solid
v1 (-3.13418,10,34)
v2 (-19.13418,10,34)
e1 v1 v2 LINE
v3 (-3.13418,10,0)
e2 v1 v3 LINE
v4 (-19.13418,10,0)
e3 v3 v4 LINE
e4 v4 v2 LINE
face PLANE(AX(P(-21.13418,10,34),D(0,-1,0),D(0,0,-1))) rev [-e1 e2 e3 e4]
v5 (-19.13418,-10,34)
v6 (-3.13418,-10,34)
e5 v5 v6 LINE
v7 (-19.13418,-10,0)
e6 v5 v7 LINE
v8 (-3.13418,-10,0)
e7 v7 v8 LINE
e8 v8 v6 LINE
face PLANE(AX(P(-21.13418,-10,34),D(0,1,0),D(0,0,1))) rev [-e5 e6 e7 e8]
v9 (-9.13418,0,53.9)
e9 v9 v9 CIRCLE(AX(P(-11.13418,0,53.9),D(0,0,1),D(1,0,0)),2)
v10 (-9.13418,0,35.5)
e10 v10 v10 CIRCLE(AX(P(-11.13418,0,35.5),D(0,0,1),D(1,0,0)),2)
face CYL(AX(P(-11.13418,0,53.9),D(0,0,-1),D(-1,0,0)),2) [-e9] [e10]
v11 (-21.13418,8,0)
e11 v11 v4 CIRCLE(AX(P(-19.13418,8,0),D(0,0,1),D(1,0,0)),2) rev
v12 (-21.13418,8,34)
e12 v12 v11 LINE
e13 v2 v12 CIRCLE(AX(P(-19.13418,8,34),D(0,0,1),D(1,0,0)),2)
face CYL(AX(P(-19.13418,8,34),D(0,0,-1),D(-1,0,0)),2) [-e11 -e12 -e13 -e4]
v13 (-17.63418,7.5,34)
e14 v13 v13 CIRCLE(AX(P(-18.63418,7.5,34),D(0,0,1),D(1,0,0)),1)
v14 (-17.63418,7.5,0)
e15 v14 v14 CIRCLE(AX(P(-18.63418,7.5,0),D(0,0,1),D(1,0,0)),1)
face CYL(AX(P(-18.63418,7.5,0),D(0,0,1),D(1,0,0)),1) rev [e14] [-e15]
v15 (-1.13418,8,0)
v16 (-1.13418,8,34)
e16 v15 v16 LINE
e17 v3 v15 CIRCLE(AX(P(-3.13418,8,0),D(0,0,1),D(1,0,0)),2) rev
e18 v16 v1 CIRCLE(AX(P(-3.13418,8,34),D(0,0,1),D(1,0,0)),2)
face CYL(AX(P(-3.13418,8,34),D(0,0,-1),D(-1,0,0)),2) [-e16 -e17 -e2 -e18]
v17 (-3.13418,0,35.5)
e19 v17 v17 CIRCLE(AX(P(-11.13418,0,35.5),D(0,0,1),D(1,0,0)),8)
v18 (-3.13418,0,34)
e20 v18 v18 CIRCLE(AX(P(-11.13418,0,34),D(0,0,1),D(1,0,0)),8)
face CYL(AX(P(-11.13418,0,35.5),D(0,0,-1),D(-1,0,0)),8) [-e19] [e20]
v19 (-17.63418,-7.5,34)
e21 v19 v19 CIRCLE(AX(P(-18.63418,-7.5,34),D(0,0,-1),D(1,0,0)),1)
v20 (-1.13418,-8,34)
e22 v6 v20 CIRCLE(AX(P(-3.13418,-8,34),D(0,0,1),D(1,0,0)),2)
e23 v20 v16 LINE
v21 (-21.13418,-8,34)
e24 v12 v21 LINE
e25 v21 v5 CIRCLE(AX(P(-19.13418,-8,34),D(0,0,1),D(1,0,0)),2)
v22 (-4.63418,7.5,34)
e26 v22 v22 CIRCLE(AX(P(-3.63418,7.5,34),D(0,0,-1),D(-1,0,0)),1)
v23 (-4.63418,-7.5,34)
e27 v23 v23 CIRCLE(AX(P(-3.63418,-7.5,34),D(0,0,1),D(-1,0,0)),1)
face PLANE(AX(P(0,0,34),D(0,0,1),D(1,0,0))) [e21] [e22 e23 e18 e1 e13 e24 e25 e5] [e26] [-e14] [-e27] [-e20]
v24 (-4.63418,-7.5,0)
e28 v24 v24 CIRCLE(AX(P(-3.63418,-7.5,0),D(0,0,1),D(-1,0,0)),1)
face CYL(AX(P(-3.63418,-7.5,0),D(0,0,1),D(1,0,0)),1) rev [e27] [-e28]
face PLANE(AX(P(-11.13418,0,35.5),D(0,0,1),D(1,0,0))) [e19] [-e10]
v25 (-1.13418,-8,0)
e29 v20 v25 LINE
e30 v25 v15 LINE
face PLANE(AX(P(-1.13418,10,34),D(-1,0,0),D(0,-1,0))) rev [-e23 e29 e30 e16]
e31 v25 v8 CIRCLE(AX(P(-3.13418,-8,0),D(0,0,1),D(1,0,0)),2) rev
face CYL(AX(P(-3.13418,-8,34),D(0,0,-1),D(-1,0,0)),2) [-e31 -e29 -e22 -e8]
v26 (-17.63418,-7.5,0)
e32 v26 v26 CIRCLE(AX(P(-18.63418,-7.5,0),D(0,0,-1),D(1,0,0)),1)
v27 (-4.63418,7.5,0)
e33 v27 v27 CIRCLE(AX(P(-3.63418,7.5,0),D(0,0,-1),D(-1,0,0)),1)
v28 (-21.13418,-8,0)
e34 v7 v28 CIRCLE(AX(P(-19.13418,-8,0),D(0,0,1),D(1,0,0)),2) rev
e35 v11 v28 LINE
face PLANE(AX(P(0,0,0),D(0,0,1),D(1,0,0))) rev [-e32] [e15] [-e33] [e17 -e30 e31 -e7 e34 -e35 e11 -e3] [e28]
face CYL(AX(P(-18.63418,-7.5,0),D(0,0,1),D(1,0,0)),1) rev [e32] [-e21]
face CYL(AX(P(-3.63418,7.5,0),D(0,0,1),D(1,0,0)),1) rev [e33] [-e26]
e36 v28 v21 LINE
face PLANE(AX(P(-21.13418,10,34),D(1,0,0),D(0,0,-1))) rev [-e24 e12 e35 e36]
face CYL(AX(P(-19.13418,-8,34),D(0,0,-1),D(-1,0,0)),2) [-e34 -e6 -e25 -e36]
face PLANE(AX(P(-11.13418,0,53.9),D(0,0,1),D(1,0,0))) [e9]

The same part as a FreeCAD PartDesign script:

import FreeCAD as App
import Part
import Sketcher
from FreeCAD import Vector


def edges_at(feature, points):
    """Names of the edges that pass closest to the given points."""
    edges = feature.Shape.Edges
    near = lambda p: min(range(len(edges)), key=lambda i: edges[i].distToShape(Part.Vertex(*p))[0])
    return sorted({f"Edge{near(p) + 1}" for p in points})

doc = App.newDocument("Part")
params = doc.addObject("Spreadsheet::Sheet", "Params")
for row, (alias, value) in enumerate([
    ("sketch1_width", "20 mm"),
    ("pad1_length", "34 mm"),
    ("sketch2_diameter", "16 mm"),
    ("pad2_length", "1.5 mm"),
    ("sketch3_diameter", "4 mm"),
    ("pad3_length", "18.4 mm"),
    ("sketch4_diameter", "2 mm"),
    ("sketch5_diameter", "2 mm"),
    ("fillet_radius", "2 mm"),
], start=1):
    params.set(f"A{row}", alias)
    params.set(f"B{row}", "=" + value)
    params.setAlias(f"B{row}", alias)

body = doc.addObject("PartDesign::Body", "Body")

sketch1 = body.newObject("Sketcher::SketchObject", "Sketch")
sketch1.AttachmentSupport = (doc.getObject("XY_Plane"), [""])
sketch1.MapMode = "FlatFace"
sketch1.addGeometry([
    Part.LineSegment(Vector(-21.13418, 10, 0), Vector(-21.13418, -10, 0)),
    Part.LineSegment(Vector(-21.13418, -10, 0), Vector(-1.13418, -10, 0)),
    Part.LineSegment(Vector(-1.13418, -10, 0), Vector(-1.13418, 10, 0)),
    Part.LineSegment(Vector(-1.13418, 10, 0), Vector(-21.13418, 10, 0)),
], False)
sketch1.addConstraint([
    Sketcher.Constraint("Coincident", 0, 2, 1, 1),
    Sketcher.Constraint("Coincident", 1, 2, 2, 1),
    Sketcher.Constraint("Coincident", 2, 2, 3, 1),
    Sketcher.Constraint("Coincident", 3, 2, 0, 1),
    Sketcher.Constraint("Vertical", 0),
    Sketcher.Constraint("Horizontal", 1),
    Sketcher.Constraint("Vertical", 2),
    Sketcher.Constraint("Horizontal", 3),
    Sketcher.Constraint("Equal", 3, 0),
    Sketcher.Constraint("DistanceX", 1, 1, 1, 2, 20.0),
    Sketcher.Constraint("DistanceY", 0, 2, -1, 1, 10.0),
    Sketcher.Constraint("DistanceX", 0, 2, -1, 1, 21.13418),
])
sketch1.setExpression("Constraints[9]", "Params.sketch1_width")
pad1 = body.newObject("PartDesign::Pad", "Pad")
pad1.Profile = sketch1
pad1.setExpression("Length", "Params.pad1_length")

sketch2 = body.newObject("Sketcher::SketchObject", "Sketch001")
sketch2.AttachmentSupport = (doc.getObject("XY_Plane"), [""])
sketch2.MapMode = "FlatFace"
sketch2.AttachmentOffset = App.Placement(Vector(0, 0, 34), App.Rotation())
sketch2.addGeometry(Part.Circle(Vector(-11.13418, 0, 0), Vector(0, 0, 1), 8), False)
sketch2.addConstraint([
    Sketcher.Constraint("PointOnObject", 0, 3, -1),
    Sketcher.Constraint("Diameter", 0, 16.0),
    Sketcher.Constraint("DistanceX", 0, 3, -1, 1, 11.13418),
])
sketch2.setExpression("Constraints[1]", "Params.sketch2_diameter")
pad2 = body.newObject("PartDesign::Pad", "Pad001")
pad2.Profile = sketch2
pad2.setExpression("Length", "Params.pad2_length")

sketch3 = body.newObject("Sketcher::SketchObject", "Sketch002")
sketch3.AttachmentSupport = (doc.getObject("XY_Plane"), [""])
sketch3.MapMode = "FlatFace"
sketch3.AttachmentOffset = App.Placement(Vector(0, 0, 35.5), App.Rotation())
sketch3.addGeometry(Part.Circle(Vector(-11.13418, 0, 0), Vector(0, 0, 1), 2), False)
sketch3.addConstraint([
    Sketcher.Constraint("PointOnObject", 0, 3, -1),
    Sketcher.Constraint("Diameter", 0, 4.0),
    Sketcher.Constraint("DistanceX", 0, 3, -1, 1, 11.13418),
])
sketch3.setExpression("Constraints[1]", "Params.sketch3_diameter")
pad3 = body.newObject("PartDesign::Pad", "Pad002")
pad3.Profile = sketch3
pad3.setExpression("Length", "Params.pad3_length")

sketch4 = body.newObject("Sketcher::SketchObject", "Sketch003")
sketch4.AttachmentSupport = (doc.getObject("XY_Plane"), [""])
sketch4.MapMode = "FlatFace"
sketch4.AttachmentOffset = App.Placement(Vector(0, 0, 34), App.Rotation())
sketch4.addGeometry(Part.Circle(Vector(-18.63418, 7.5, 0), Vector(0, 0, 1), 1), False)
sketch4.addConstraint([
    Sketcher.Constraint("Diameter", 0, 2.0),
    Sketcher.Constraint("DistanceY", -1, 1, 0, 3, 7.5),
    Sketcher.Constraint("DistanceX", 0, 3, -1, 1, 18.63418),
])
sketch4.setExpression("Constraints[0]", "Params.sketch4_diameter")
pocket1 = body.newObject("PartDesign::Pocket", "Pocket")
pocket1.Profile = sketch4
pocket1.Type = "ThroughAll"
doc.recompute()

datumplane = body.newObject("PartDesign::Plane", "DatumPlane")
datumplane.AttachmentSupport = (doc.getObject("YZ_Plane"), [""])
datumplane.MapMode = "FlatFace"
datumplane.AttachmentOffset = App.Placement(Vector(0, 0, -11.13418), App.Rotation())
mirrored = body.newObject("PartDesign::Mirrored", "Mirrored")
mirrored.Originals = [pocket1]
mirrored.MirrorPlane = (datumplane, [""])
body.Tip = mirrored
doc.recompute()

mirrored2 = body.newObject("PartDesign::Mirrored", "Mirrored001")
mirrored2.Originals = [pocket1]
mirrored2.MirrorPlane = (doc.getObject("XZ_Plane"), [""])
body.Tip = mirrored2

sketch5 = body.newObject("Sketcher::SketchObject", "Sketch004")
sketch5.AttachmentSupport = (doc.getObject("XY_Plane"), [""])
sketch5.MapMode = "FlatFace"
sketch5.AttachmentOffset = App.Placement(Vector(0, 0, 34), App.Rotation())
sketch5.addGeometry(Part.Circle(Vector(-3.63418, -7.5, 0), Vector(0, 0, 1), 1), False)
sketch5.addConstraint([
    Sketcher.Constraint("Diameter", 0, 2.0),
    Sketcher.Constraint("DistanceY", 0, 3, -1, 1, 7.5),
    Sketcher.Constraint("DistanceX", 0, 3, -1, 1, 3.63418),
])
sketch5.setExpression("Constraints[0]", "Params.sketch5_diameter")
pocket2 = body.newObject("PartDesign::Pocket", "Pocket001")
pocket2.Profile = sketch5
pocket2.Type = "ThroughAll"
doc.recompute()

fillet = body.newObject("PartDesign::Fillet", "Fillet")
fillet.Base = (pocket2, edges_at(pocket2, [
    (-21.134, 10, 17),
    (-1.134, 10, 17),
    (-1.134, -10, 17),
    (-21.134, -10, 17),
]))
fillet.setExpression("Radius", "Params.fillet_radius")

doc.recompute()
